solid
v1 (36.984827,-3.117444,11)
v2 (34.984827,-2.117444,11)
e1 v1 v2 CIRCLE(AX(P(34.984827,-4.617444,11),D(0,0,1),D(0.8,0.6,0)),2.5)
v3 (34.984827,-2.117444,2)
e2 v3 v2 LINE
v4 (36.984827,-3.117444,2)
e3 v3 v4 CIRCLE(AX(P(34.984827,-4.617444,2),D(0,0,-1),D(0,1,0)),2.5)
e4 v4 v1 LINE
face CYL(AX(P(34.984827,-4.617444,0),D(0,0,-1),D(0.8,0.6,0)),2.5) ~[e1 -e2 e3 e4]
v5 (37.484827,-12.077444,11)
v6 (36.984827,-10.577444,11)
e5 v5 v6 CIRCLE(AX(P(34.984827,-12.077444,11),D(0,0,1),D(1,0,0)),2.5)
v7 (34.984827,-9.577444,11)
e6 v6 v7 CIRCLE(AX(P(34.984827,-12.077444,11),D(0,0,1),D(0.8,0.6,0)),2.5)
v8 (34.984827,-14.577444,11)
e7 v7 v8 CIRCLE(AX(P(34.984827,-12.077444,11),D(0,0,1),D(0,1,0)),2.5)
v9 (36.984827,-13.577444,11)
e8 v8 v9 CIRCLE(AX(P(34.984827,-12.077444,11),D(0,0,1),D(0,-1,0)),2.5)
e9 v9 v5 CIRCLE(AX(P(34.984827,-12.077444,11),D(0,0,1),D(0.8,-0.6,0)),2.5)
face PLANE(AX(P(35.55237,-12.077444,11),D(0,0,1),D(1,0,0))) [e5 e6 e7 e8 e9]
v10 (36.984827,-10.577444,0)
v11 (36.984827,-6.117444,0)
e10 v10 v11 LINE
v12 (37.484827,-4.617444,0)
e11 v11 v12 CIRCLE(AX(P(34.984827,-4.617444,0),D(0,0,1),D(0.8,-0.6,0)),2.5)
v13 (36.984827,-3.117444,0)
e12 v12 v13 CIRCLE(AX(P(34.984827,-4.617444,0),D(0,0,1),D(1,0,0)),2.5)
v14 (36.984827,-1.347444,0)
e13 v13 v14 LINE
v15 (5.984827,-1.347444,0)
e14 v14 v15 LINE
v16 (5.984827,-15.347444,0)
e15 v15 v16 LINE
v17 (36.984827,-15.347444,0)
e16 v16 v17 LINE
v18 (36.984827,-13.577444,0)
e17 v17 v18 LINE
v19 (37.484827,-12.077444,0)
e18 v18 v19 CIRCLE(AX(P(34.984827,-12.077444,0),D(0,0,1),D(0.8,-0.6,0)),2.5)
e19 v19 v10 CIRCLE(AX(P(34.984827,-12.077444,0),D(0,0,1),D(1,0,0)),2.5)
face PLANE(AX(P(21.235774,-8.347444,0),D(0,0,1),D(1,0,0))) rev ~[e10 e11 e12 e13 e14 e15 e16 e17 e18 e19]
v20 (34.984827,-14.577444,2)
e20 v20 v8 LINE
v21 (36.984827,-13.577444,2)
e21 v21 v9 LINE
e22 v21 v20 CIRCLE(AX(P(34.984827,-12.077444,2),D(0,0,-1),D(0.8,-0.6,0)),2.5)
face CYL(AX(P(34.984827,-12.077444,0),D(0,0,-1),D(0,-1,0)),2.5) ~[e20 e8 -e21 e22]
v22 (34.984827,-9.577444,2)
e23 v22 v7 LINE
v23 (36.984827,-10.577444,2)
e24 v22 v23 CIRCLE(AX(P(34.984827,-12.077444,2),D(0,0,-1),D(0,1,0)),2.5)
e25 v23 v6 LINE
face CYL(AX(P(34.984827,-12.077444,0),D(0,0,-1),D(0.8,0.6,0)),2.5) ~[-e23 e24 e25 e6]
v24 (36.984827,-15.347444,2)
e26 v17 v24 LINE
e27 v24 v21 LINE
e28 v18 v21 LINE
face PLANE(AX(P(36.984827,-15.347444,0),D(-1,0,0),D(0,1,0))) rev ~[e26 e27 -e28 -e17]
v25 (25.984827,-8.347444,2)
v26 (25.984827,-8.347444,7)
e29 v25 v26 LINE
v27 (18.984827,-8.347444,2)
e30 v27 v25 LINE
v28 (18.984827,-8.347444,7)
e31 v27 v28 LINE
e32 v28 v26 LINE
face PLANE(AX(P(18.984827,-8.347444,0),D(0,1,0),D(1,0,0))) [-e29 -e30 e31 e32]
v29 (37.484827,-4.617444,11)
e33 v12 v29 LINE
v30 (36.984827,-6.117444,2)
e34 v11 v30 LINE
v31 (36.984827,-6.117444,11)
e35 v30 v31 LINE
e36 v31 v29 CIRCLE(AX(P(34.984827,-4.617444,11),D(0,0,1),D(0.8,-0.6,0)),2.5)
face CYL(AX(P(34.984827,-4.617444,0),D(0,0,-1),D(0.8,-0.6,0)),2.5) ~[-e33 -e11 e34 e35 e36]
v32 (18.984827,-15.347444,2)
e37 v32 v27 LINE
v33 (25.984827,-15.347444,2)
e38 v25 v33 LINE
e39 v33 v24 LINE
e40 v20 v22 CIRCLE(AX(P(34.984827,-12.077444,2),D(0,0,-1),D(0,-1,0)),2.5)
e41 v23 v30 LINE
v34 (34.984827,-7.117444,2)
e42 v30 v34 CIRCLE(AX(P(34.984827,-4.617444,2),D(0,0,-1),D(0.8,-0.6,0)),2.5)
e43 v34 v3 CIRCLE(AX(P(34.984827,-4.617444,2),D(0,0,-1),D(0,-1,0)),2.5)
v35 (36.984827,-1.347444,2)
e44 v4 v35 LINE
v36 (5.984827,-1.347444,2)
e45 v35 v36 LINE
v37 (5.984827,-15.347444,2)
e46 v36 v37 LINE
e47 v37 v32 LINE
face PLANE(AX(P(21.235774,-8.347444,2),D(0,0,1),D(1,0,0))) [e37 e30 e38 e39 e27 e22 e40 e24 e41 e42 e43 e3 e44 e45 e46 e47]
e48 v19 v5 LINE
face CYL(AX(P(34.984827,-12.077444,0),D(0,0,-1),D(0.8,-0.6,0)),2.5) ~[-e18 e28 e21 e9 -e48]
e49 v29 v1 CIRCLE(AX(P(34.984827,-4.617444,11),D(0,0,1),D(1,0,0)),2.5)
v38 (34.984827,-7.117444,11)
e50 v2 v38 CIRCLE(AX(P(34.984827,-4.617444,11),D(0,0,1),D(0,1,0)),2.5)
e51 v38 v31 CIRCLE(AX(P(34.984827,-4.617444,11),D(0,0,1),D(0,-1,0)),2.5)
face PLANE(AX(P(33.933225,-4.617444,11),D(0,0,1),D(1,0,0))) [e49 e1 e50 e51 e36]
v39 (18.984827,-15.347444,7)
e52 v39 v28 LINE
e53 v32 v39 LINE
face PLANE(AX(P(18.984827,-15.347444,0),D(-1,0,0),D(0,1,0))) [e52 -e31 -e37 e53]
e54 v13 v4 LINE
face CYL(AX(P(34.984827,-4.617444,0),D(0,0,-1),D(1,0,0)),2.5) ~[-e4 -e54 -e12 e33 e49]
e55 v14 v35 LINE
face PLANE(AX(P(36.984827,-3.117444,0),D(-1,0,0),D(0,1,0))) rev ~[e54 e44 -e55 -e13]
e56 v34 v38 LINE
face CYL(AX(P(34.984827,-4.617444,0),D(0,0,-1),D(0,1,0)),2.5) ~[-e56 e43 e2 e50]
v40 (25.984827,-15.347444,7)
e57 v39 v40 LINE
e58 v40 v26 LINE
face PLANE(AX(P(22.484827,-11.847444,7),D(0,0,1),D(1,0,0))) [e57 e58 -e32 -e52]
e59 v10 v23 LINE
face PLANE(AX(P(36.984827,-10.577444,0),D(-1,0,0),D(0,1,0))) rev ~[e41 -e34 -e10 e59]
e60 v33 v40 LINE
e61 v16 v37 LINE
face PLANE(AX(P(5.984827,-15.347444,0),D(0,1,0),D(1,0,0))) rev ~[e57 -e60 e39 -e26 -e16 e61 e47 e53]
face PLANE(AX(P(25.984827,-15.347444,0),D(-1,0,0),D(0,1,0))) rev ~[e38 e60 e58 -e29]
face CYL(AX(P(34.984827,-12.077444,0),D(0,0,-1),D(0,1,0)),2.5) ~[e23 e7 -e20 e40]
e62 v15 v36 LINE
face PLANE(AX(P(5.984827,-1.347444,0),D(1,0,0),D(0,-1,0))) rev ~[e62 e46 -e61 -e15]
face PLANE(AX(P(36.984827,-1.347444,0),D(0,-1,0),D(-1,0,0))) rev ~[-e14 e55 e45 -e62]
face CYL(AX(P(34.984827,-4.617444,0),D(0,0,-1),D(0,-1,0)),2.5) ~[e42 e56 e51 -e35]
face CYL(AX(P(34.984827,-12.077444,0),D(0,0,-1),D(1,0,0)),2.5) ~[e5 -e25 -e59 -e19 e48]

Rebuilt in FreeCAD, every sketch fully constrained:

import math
import FreeCAD as App
import Part
import Sketcher


def add_polygon(sketch, points):
    """Adds a closed chain of lines whose ends are joined by coincident constraints."""
    first, n = sketch.GeometryCount, len(points)
    for a, b in zip(points, points[1:] + points[:1]):
        sketch.addGeometry(Part.LineSegment(App.Vector(*a, 0), App.Vector(*b, 0)), False)
    for i in range(n):
        sketch.addConstraint(Sketcher.Constraint("Coincident", first + i, 2, first + (i + 1) % n, 1))

doc = App.newDocument("Part")
params = doc.addObject("Spreadsheet::Sheet", "Params")
for row, (alias, value) in enumerate([
    ("sketch1_width", "7 mm"),
    ("pad1_length", "7 mm"),
    ("sketch2_radius", "2.5 mm"),
    ("pad2_length", "11 mm"),
    ("sketch3_radius", "2.5 mm"),
    ("pad3_length", "11 mm"),
    ("sketch4_radius", "2.5 mm"),
    ("sketch4_width", "13 mm"),
    ("sketch4_width2", "7 mm"),
    ("sketch4_width3", "11 mm"),
    ("sketch4_height", "14 mm"),
    ("pad4_length", "2 mm"),
], start=1):
    params.set(f"A{row}", alias)
    params.set(f"B{row}", "=" + value)
    params.setAlias(f"B{row}", alias)

body = doc.addObject("PartDesign::Body", "Body")

# Sketch on XY plane
sketch1 = doc.addObject("Sketcher::SketchObject", "Sketch")
body.addObject(sketch1)
sketch1.AttachmentSupport = (doc.XY_Plane, [""])
sketch1.MapMode = "FlatFace"
add_polygon(sketch1, [(18.984827, -8.347444), (18.984827, -15.347444), (25.984827, -15.347444), (25.984827, -8.347444)])  # lines 0-3
sketch1.addConstraint(Sketcher.Constraint("Vertical", 0))
sketch1.addConstraint(Sketcher.Constraint("Horizontal", 1))
sketch1.addConstraint(Sketcher.Constraint("Vertical", 2))
sketch1.addConstraint(Sketcher.Constraint("Horizontal", 3))
sketch1.addConstraint(Sketcher.Constraint("Equal", 3, 0))
sketch1.addConstraint(Sketcher.Constraint("DistanceX", 1, 1, 1, 2, 7.0))
sketch1.addConstraint(Sketcher.Constraint("DistanceX", -1, 1, 0, 2, 18.984827))
sketch1.addConstraint(Sketcher.Constraint("DistanceY", 0, 2, -1, 1, 15.347444))
sketch1.setExpression("Constraints[9]", "Params.sketch1_width")
pad1 = doc.addObject("PartDesign::Pad", "Pad")
body.addObject(pad1)
pad1.Profile = sketch1
pad1.setExpression("Length", "Params.pad1_length")
body2 = doc.addObject("PartDesign::Body", "Body001")

# Sketch on XY plane
sketch2 = doc.addObject("Sketcher::SketchObject", "Sketch001")
body2.addObject(sketch2)
sketch2.AttachmentSupport = (doc.getObject("XY_Plane001"), [""])
sketch2.MapMode = "FlatFace"
sketch2.addGeometry(Part.ArcOfCircle(Part.Circle(App.Vector(34.984827, -4.617444, 0), App.Vector(0, 0, 1), 2.5), math.radians(90), math.radians(270)), False)
sketch2.addGeometry(Part.ArcOfCircle(Part.Circle(App.Vector(34.984827, -4.617444, 0), App.Vector(0, 0, 1), 2.5), math.radians(-90), math.radians(-36.869898)), False)
sketch2.addGeometry(Part.ArcOfCircle(Part.Circle(App.Vector(34.984827, -4.617444, 0), App.Vector(0, 0, 1), 2.5), math.radians(-36.869898), math.radians(0)), False)
sketch2.addGeometry(Part.ArcOfCircle(Part.Circle(App.Vector(34.984827, -4.617444, 0), App.Vector(0, 0, 1), 2.5), math.radians(0), math.radians(36.869898)), False)
sketch2.addGeometry(Part.ArcOfCircle(Part.Circle(App.Vector(34.984827, -4.617444, 0), App.Vector(0, 0, 1), 2.5), math.radians(36.869898), math.radians(90)), False)
sketch2.addConstraint(Sketcher.Constraint("Tangent", 0, 2, 1, 1))
sketch2.addConstraint(Sketcher.Constraint("Tangent", 1, 2, 2, 1))
sketch2.addConstraint(Sketcher.Constraint("Tangent", 2, 2, 3, 1))
sketch2.addConstraint(Sketcher.Constraint("Tangent", 3, 2, 4, 1))
sketch2.addConstraint(Sketcher.Constraint("Tangent", 4, 2, 0, 1))
sketch2.addConstraint(Sketcher.Constraint("Coincident", 2, 3, 0, 3))
sketch2.addConstraint(Sketcher.Constraint("Horizontal", 4, 3, 2, 2))
sketch2.addConstraint(Sketcher.Constraint("Vertical", 4, 3, 0, 2))
sketch2.addConstraint(Sketcher.Constraint("Vertical", 1, 2, 3, 2))
sketch2.addConstraint(Sketcher.Constraint("Vertical", 0, 2, 4, 2))
sketch2.addConstraint(Sketcher.Constraint("Radius", 0, 2.5))
sketch2.addConstraint(Sketcher.Constraint("DistanceX", 0, 2, 1, 2, 2.0))
sketch2.addConstraint(Sketcher.Constraint("DistanceX", -1, 1, 0, 3, 34.984827))
sketch2.addConstraint(Sketcher.Constraint("DistanceY", 0, 3, -1, 1, 4.617444))
sketch2.setExpression("Constraints[10]", "Params.sketch2_radius")
pad2 = doc.addObject("PartDesign::Pad", "Pad001")
body2.addObject(pad2)
pad2.Profile = sketch2
pad2.setExpression("Length", "Params.pad2_length")
body3 = doc.addObject("PartDesign::Body", "Body002")

# Sketch on XY plane
sketch3 = doc.addObject("Sketcher::SketchObject", "Sketch002")
body3.addObject(sketch3)
sketch3.AttachmentSupport = (doc.getObject("XY_Plane002"), [""])
sketch3.MapMode = "FlatFace"
sketch3.addGeometry(Part.ArcOfCircle(Part.Circle(App.Vector(34.984827, -12.077444, 0), App.Vector(0, 0, 1), 2.5), math.radians(-90), math.radians(-36.869898)), False)
sketch3.addGeometry(Part.ArcOfCircle(Part.Circle(App.Vector(34.984827, -12.077444, 0), App.Vector(0, 0, 1), 2.5), math.radians(-36.869898), math.radians(0)), False)
sketch3.addGeometry(Part.ArcOfCircle(Part.Circle(App.Vector(34.984827, -12.077444, 0), App.Vector(0, 0, 1), 2.5), math.radians(0), math.radians(36.869898)), False)
sketch3.addGeometry(Part.ArcOfCircle(Part.Circle(App.Vector(34.984827, -12.077444, 0), App.Vector(0, 0, 1), 2.5), math.radians(36.869898), math.radians(90)), False)
sketch3.addGeometry(Part.ArcOfCircle(Part.Circle(App.Vector(34.984827, -12.077444, 0), App.Vector(0, 0, 1), 2.5), math.radians(90), math.radians(270)), False)
sketch3.addConstraint(Sketcher.Constraint("Tangent", 0, 2, 1, 1))
sketch3.addConstraint(Sketcher.Constraint("Tangent", 1, 2, 2, 1))
sketch3.addConstraint(Sketcher.Constraint("Tangent", 2, 2, 3, 1))
sketch3.addConstraint(Sketcher.Constraint("Tangent", 3, 2, 4, 1))
sketch3.addConstraint(Sketcher.Constraint("Tangent", 4, 2, 0, 1))
sketch3.addConstraint(Sketcher.Constraint("Coincident", 2, 3, 0, 3))
sketch3.addConstraint(Sketcher.Constraint("Horizontal", 4, 3, 1, 2))
sketch3.addConstraint(Sketcher.Constraint("Vertical", 0, 2, 2, 2))
sketch3.addConstraint(Sketcher.Constraint("Vertical", 4, 3, 3, 2))
sketch3.addConstraint(Sketcher.Constraint("Vertical", 3, 2, 4, 2))
sketch3.addConstraint(Sketcher.Constraint("Radius", 0, 2.5))
sketch3.addConstraint(Sketcher.Constraint("DistanceX", 4, 3, 0, 2, 2.0))
sketch3.addConstraint(Sketcher.Constraint("DistanceX", -1, 1, 0, 3, 34.984827))
sketch3.addConstraint(Sketcher.Constraint("DistanceY", 0, 3, -1, 1, 12.077444))
sketch3.setExpression("Constraints[10]", "Params.sketch3_radius")
pad3 = doc.addObject("PartDesign::Pad", "Pad002")
body3.addObject(pad3)
pad3.Profile = sketch3
pad3.setExpression("Length", "Params.pad3_length")
body.AllowCompound = True
doc.recompute()

boolean = doc.addObject("PartDesign::Boolean", "Boolean")
body.addObject(boolean)
boolean.Type = "Fuse"
boolean.addObjects([body2])
doc.recompute()

boolean2 = doc.addObject("PartDesign::Boolean", "Boolean001")
body.addObject(boolean2)
boolean2.Type = "Fuse"
boolean2.addObjects([body3])

# Sketch on XY plane
sketch4 = doc.addObject("Sketcher::SketchObject", "Sketch003")
body.addObject(sketch4)
sketch4.AttachmentSupport = (doc.XY_Plane, [""])
sketch4.MapMode = "FlatFace"
sketch4.addGeometry(Part.LineSegment(App.Vector(5.984827, -1.347444, 0), App.Vector(5.984827, -15.347444, 0)), False)
sketch4.addGeometry(Part.LineSegment(App.Vector(5.984827, -15.347444, 0), App.Vector(18.984827, -15.347444, 0)), False)
sketch4.addGeometry(Part.LineSegment(App.Vector(18.984827, -15.347444, 0), App.Vector(18.984827, -8.347444, 0)), False)
sketch4.addGeometry(Part.LineSegment(App.Vector(18.984827, -8.347444, 0), App.Vector(25.984827, -8.347444, 0)), False)
sketch4.addGeometry(Part.LineSegment(App.Vector(25.984827, -8.347444, 0), App.Vector(25.984827, -15.347444, 0)), False)
sketch4.addGeometry(Part.LineSegment(App.Vector(25.984827, -15.347444, 0), App.Vector(36.984827, -15.347444, 0)), False)
sketch4.addGeometry(Part.LineSegment(App.Vector(36.984827, -15.347444, 0), App.Vector(36.984827, -13.577444, 0)), False)
sketch4.addGeometry(Part.ArcOfCircle(Part.Circle(App.Vector(34.984827, -12.077444, 0), App.Vector(0, 0, 1), 2.5), math.radians(-90), math.radians(-36.869898)), False)
sketch4.addGeometry(Part.ArcOfCircle(Part.Circle(App.Vector(34.984827, -12.077444, 0), App.Vector(0, 0, 1), 2.5), math.radians(90), math.radians(270)), False)
sketch4.addGeometry(Part.ArcOfCircle(Part.Circle(App.Vector(34.984827, -12.077444, 0), App.Vector(0, 0, 1), 2.5), math.radians(36.869898), math.radians(90)), False)
sketch4.addGeometry(Part.LineSegment(App.Vector(36.984827, -10.577444, 0), App.Vector(36.984827, -6.117444, 0)), False)
sketch4.addGeometry(Part.ArcOfCircle(Part.Circle(App.Vector(34.984827, -4.617444, 0), App.Vector(0, 0, 1), 2.5), math.radians(-90), math.radians(-36.869898)), False)
sketch4.addGeometry(Part.ArcOfCircle(Part.Circle(App.Vector(34.984827, -4.617444, 0), App.Vector(0, 0, 1), 2.5), math.radians(90), math.radians(270)), False)
sketch4.addGeometry(Part.ArcOfCircle(Part.Circle(App.Vector(34.984827, -4.617444, 0), App.Vector(0, 0, 1), 2.5), math.radians(36.869898), math.radians(90)), False)
sketch4.addGeometry(Part.LineSegment(App.Vector(36.984827, -3.117444, 0), App.Vector(36.984827, -1.347444, 0)), False)
sketch4.addGeometry(Part.LineSegment(App.Vector(36.984827, -1.347444, 0), App.Vector(5.984827, -1.347444, 0)), False)
sketch4.addConstraint(Sketcher.Constraint("Coincident", 0, 2, 1, 1))
sketch4.addConstraint(Sketcher.Constraint("Coincident", 1, 2, 2, 1))
sketch4.addConstraint(Sketcher.Constraint("Coincident", 2, 2, 3, 1))
sketch4.addConstraint(Sketcher.Constraint("Coincident", 3, 2, 4, 1))
sketch4.addConstraint(Sketcher.Constraint("Coincident", 4, 2, 5, 1))
sketch4.addConstraint(Sketcher.Constraint("Coincident", 5, 2, 6, 1))
sketch4.addConstraint(Sketcher.Constraint("Coincident", 6, 2, 7, 2))
sketch4.addConstraint(Sketcher.Constraint("Tangent", 7, 1, 8, 2))
sketch4.addConstraint(Sketcher.Constraint("Tangent", 8, 1, 9, 2))
sketch4.addConstraint(Sketcher.Constraint("Coincident", 9, 1, 10, 1))
sketch4.addConstraint(Sketcher.Constraint("Coincident", 10, 2, 11, 2))
sketch4.addConstraint(Sketcher.Constraint("Tangent", 11, 1, 12, 2))
sketch4.addConstraint(Sketcher.Constraint("Tangent", 12, 1, 13, 2))
sketch4.addConstraint(Sketcher.Constraint("Coincident", 13, 1, 14, 1))
sketch4.addConstraint(Sketcher.Constraint("Coincident", 14, 2, 15, 1))
sketch4.addConstraint(Sketcher.Constraint("Coincident", 15, 2, 0, 1))
sketch4.addConstraint(Sketcher.Constraint("Vertical", 0))
sketch4.addConstraint(Sketcher.Constraint("Horizontal", 1))
sketch4.addConstraint(Sketcher.Constraint("Vertical", 2))
sketch4.addConstraint(Sketcher.Constraint("Horizontal", 3))
sketch4.addConstraint(Sketcher.Constraint("Vertical", 4))
sketch4.addConstraint(Sketcher.Constraint("Horizontal", 5))
sketch4.addConstraint(Sketcher.Constraint("Vertical", 6))
sketch4.addConstraint(Sketcher.Constraint("Vertical", 10))
sketch4.addConstraint(Sketcher.Constraint("Vertical", 14))
sketch4.addConstraint(Sketcher.Constraint("Horizontal", 15))
sketch4.addConstraint(Sketcher.Constraint("Equal", 7, 8))
sketch4.addConstraint(Sketcher.Constraint("Equal", 8, 9))
sketch4.addConstraint(Sketcher.Constraint("Equal", 9, 11))
sketch4.addConstraint(Sketcher.Constraint("Equal", 11, 12))
sketch4.addConstraint(Sketcher.Constraint("Equal", 12, 13))
sketch4.addConstraint(Sketcher.Constraint("Horizontal", 1, 2, 4, 2))
sketch4.addConstraint(Sketcher.Constraint("Vertical", 9, 3, 11, 3))
sketch4.addConstraint(Sketcher.Constraint("Vertical", 13, 3, 7, 1))
sketch4.addConstraint(Sketcher.Constraint("Vertical", 7, 1, 8, 1))
sketch4.addConstraint(Sketcher.Constraint("Vertical", 6, 2, 9, 1))
sketch4.addConstraint(Sketcher.Constraint("Vertical", 8, 1, 11, 1))
sketch4.addConstraint(Sketcher.Constraint("Vertical", 11, 1, 12, 1))
sketch4.addConstraint(Sketcher.Constraint("Vertical", 10, 2, 13, 1))
sketch4.addConstraint(Sketcher.Constraint("Equal", 3, 2))
sketch4.addConstraint(Sketcher.Constraint("Equal", 6, 14))
sketch4.addConstraint(Sketcher.Constraint("Radius", 7, 2.5))
sketch4.addConstraint(Sketcher.Constraint("DistanceX", 1, 1, 1, 2, 13.0))
sketch4.addConstraint(Sketcher.Constraint("DistanceX", 3, 1, 3, 2, 7.0))
sketch4.addConstraint(Sketcher.Constraint("DistanceX", 5, 1, 5, 2, 11.0))
sketch4.addConstraint(Sketcher.Constraint("DistanceY", 0, 2, 0, 1, 14.0))
sketch4.addConstraint(Sketcher.Constraint("DistanceX", 0, 2, 7, 3, 29.0))
sketch4.addConstraint(Sketcher.Constraint("DistanceY", 6, 1, 6, 2, 1.77))
sketch4.addConstraint(Sketcher.Constraint("DistanceX", -1, 1, 7, 3, 34.984827))
sketch4.addConstraint(Sketcher.Constraint("DistanceY", 7, 3, -1, 1, 12.077444))
sketch4.setExpression("Constraints[41]", "Params.sketch4_radius")
sketch4.setExpression("Constraints[42]", "Params.sketch4_width")
sketch4.setExpression("Constraints[43]", "Params.sketch4_width2")
sketch4.setExpression("Constraints[44]", "Params.sketch4_width3")
sketch4.setExpression("Constraints[45]", "Params.sketch4_height")
pad4 = doc.addObject("PartDesign::Pad", "Pad003")
body.addObject(pad4)
pad4.Profile = sketch4
pad4.setExpression("Length", "Params.pad4_length")

doc.recompute()
